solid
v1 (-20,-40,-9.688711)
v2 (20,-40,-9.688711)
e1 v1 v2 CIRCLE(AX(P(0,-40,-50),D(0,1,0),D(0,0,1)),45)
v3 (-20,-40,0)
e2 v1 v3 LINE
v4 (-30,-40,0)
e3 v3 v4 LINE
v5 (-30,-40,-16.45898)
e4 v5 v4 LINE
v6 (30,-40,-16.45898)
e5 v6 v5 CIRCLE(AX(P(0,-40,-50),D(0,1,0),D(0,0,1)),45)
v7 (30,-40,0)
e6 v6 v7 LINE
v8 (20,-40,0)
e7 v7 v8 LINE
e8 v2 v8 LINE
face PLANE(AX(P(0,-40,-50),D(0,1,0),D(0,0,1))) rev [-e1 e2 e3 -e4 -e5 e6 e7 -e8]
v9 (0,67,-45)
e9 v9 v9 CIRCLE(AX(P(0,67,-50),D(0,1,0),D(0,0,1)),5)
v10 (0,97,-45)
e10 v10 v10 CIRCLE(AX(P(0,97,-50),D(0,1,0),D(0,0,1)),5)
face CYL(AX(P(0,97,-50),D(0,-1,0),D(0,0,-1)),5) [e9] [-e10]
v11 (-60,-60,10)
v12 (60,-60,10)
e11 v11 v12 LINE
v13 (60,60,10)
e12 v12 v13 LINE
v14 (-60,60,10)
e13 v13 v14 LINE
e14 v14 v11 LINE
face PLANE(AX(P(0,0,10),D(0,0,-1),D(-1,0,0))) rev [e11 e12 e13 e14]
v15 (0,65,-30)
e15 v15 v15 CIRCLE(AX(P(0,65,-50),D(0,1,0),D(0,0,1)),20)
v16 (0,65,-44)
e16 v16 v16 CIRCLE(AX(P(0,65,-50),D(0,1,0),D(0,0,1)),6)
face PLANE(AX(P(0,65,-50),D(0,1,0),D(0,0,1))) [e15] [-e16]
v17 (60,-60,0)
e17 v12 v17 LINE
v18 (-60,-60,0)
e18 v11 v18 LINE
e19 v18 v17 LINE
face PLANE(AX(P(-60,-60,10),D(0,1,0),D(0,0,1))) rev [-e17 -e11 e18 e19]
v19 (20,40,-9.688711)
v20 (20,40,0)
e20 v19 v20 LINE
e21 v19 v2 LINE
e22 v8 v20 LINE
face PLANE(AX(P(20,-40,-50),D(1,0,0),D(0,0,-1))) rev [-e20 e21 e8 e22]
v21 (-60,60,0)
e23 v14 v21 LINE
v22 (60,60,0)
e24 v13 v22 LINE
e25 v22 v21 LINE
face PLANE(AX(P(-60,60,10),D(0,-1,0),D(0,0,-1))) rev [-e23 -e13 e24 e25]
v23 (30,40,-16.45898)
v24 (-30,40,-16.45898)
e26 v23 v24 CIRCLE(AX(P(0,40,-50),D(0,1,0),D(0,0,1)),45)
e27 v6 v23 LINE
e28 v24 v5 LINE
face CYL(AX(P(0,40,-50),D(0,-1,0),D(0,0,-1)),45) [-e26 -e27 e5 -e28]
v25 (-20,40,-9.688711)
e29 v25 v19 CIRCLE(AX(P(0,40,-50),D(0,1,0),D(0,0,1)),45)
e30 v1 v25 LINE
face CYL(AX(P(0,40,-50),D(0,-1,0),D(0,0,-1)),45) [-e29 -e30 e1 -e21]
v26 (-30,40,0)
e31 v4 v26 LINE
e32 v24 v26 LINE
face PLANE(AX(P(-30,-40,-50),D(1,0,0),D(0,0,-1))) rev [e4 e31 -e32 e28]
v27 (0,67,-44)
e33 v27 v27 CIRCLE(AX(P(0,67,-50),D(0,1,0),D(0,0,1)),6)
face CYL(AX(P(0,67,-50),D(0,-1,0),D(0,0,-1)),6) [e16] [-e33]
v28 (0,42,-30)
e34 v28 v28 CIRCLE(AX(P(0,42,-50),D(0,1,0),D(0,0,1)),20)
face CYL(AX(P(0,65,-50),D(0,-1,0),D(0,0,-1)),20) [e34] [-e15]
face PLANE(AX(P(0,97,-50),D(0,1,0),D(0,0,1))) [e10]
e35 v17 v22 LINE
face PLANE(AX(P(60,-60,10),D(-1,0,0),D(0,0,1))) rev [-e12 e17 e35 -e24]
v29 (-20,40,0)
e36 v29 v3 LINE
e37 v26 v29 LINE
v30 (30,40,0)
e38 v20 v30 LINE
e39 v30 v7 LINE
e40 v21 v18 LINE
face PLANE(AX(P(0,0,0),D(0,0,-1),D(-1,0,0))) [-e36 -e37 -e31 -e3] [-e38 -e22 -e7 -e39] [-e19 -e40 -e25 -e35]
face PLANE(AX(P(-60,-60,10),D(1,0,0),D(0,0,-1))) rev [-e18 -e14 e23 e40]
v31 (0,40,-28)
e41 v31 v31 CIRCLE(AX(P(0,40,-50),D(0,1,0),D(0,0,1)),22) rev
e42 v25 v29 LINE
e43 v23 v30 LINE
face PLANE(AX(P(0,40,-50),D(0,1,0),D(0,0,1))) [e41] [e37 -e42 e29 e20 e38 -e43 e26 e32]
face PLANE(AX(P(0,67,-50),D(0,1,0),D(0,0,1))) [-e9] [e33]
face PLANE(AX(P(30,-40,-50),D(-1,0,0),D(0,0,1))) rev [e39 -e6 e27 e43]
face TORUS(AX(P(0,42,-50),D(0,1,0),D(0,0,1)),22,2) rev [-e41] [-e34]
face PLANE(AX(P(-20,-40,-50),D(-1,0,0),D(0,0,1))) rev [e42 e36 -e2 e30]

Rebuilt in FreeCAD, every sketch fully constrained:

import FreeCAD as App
import Part
import Sketcher
from FreeCAD import Vector


def edges_at(feature, points):
    """Names of the edges that pass closest to the given points."""
    edges = feature.Shape.Edges
    near = lambda p: min(range(len(edges)), key=lambda i: edges[i].distToShape(Part.Vertex(*p))[0])
    return sorted({f"Edge{near(p) + 1}" for p in points})


def add_polygon(sketch, points):
    """Adds a closed chain of lines whose ends are joined by coincident constraints."""
    first, n = sketch.GeometryCount, len(points)
    for a, b in zip(points, points[1:] + points[:1]):
        sketch.addGeometry(Part.LineSegment(App.Vector(*a, 0), App.Vector(*b, 0)), False)
    for i in range(n):
        sketch.addConstraint(Sketcher.Constraint("Coincident", first + i, 2, first + (i + 1) % n, 1))

doc = App.newDocument("Part")
params = doc.addObject("Spreadsheet::Sheet", "Params")
for row, (alias, value) in enumerate([
    ("sketch1_width", "120 mm"),
    ("pad1_length", "10 mm"),
    ("sketch2_width", "10 mm"),
    ("sketch2_height", "80 mm"),
    ("pad2_length", "50 mm"),
    ("sketch3_diameter", "90 mm"),
    ("pad3_length", "80 mm"),
    ("sketch4_diameter", "40 mm"),
    ("pad4_length", "25 mm"),
    ("fillet_radius", "2 mm"),
    ("sketch5_diameter", "12 mm"),
    ("pad5_length", "2 mm"),
    ("sketch6_diameter", "10 mm"),
    ("pad6_length", "30 mm"),
], start=1):
    params.set(f"A{row}", alias)
    params.set(f"B{row}", "=" + value)
    params.setAlias(f"B{row}", alias)

body = doc.addObject("PartDesign::Body", "Body")

# Sketch on XY plane
sketch1 = body.newObject("Sketcher::SketchObject", "Sketch")
sketch1.AttachmentSupport = (doc.getObject("XY_Plane"), [""])
sketch1.MapMode = "FlatFace"
add_polygon(sketch1, [(-60, 60), (-60, -60), (60, -60), (60, 60)])  # lines 0-3
sketch1.addConstraint([
    Sketcher.Constraint("Vertical", 0),
    Sketcher.Constraint("Horizontal", 1),
    Sketcher.Constraint("Vertical", 2),
    Sketcher.Constraint("Horizontal", 3),
    Sketcher.Constraint("Symmetric", 0, 2, 2, 2, -1, 1),
    Sketcher.Constraint("Equal", 3, 0),
    Sketcher.Constraint("DistanceX", 1, 1, 1, 2, 120.0),
])
sketch1.setExpression("Constraints[10]", "Params.sketch1_width")
pad1 = body.newObject("PartDesign::Pad", "Pad")
pad1.Profile = sketch1
pad1.setExpression("Length", "Params.pad1_length")

# Sketch on XY plane
sketch2 = body.newObject("Sketcher::SketchObject", "Sketch001")
sketch2.AttachmentSupport = (doc.getObject("XY_Plane"), [""])
sketch2.MapMode = "FlatFace"
add_polygon(sketch2, [(30, 40), (30, -40), (20, -40), (20, 40)])  # lines 0-3
add_polygon(sketch2, [(-20, 40), (-20, -40), (-30, -40), (-30, 40)])  # lines 4-7
sketch2.addConstraint([
    Sketcher.Constraint("Vertical", 0),
    Sketcher.Constraint("Horizontal", 1),
    Sketcher.Constraint("Vertical", 2),
    Sketcher.Constraint("Horizontal", 3),
    Sketcher.Constraint("Vertical", 4),
    Sketcher.Constraint("Horizontal", 5),
    Sketcher.Constraint("Vertical", 6),
    Sketcher.Constraint("Horizontal", 7),
    Sketcher.Constraint("Symmetric", 2, 2, 4, 2, -1, 1),
    Sketcher.Constraint("Symmetric", 0, 2, 6, 2, -1, 1),
    Sketcher.Constraint("Horizontal", 1, 2, 4, 2),
    Sketcher.Constraint("DistanceX", 1, 2, 1, 1, 10.0),
    Sketcher.Constraint("DistanceY", 0, 2, 0, 1, 80.0),
    Sketcher.Constraint("DistanceX", -1, 1, 0, 2, 30.0),
])
sketch2.setExpression("Constraints[19]", "Params.sketch2_width")
sketch2.setExpression("Constraints[20]", "Params.sketch2_height")
pad2 = body.newObject("PartDesign::Pad", "Pad001")
pad2.Profile = sketch2
pad2.setExpression("Length", "Params.pad2_length")
pad2.Reversed = True
body2 = doc.addObject("PartDesign::Body", "Body001")

# Sketch on XZ plane
sketch3 = body2.newObject("Sketcher::SketchObject", "Sketch002")
sketch3.AttachmentSupport = (doc.getObject("XZ_Plane001"), [""])
sketch3.MapMode = "FlatFace"
sketch3.addGeometry(Part.Circle(Vector(0, -50, 0), Vector(0, 0, 1), 45), False)
sketch3.addConstraint([
    Sketcher.Constraint("PointOnObject", 0, 3, -2),
    Sketcher.Constraint("Diameter", 0, 90.0),
    Sketcher.Constraint("DistanceY", 0, 3, -1, 1, 50.0),
])
sketch3.setExpression("Constraints[1]", "Params.sketch3_diameter")
pad3 = body2.newObject("PartDesign::Pad", "Pad002")
pad3.Profile = sketch3
pad3.setExpression("Length", "Params.pad3_length")
pad3.Midplane = True
doc.recompute()

boolean = body.newObject("PartDesign::Boolean", "Boolean")
boolean.Type = "Fuse"
boolean.addObjects([body2])

# Sketch on XZ plane
sketch4 = body.newObject("Sketcher::SketchObject", "Sketch003")
sketch4.AttachmentSupport = (doc.getObject("XZ_Plane"), [""])
sketch4.MapMode = "FlatFace"
sketch4.AttachmentOffset = App.Placement(Vector(0, 0, -40), App.Rotation())
sketch4.addGeometry(Part.Circle(Vector(0, -50, 0), Vector(0, 0, 1), 20), False)
sketch4.addConstraint([
    Sketcher.Constraint("PointOnObject", 0, 3, -2),
    Sketcher.Constraint("Diameter", 0, 40.0),
    Sketcher.Constraint("DistanceY", 0, 3, -1, 1, 50.0),
])
sketch4.setExpression("Constraints[1]", "Params.sketch4_diameter")
pad4 = body.newObject("PartDesign::Pad", "Pad003")
pad4.Profile = sketch4
pad4.setExpression("Length", "Params.pad4_length")
pad4.Reversed = True
doc.recompute()

fillet = body.newObject("PartDesign::Fillet", "Fillet")
fillet.Base = (pad4, edges_at(pad4, [(-20, 40, -50)]))
fillet.setExpression("Radius", "Params.fillet_radius")

# Sketch on XZ plane
sketch5 = body.newObject("Sketcher::SketchObject", "Sketch004")
sketch5.AttachmentSupport = (doc.getObject("XZ_Plane"), [""])
sketch5.MapMode = "FlatFace"
sketch5.AttachmentOffset = App.Placement(Vector(0, 0, -65), App.Rotation())
sketch5.addGeometry(Part.Circle(Vector(0, -50, 0), Vector(0, 0, 1), 6), False)
sketch5.addConstraint([
    Sketcher.Constraint("PointOnObject", 0, 3, -2),
    Sketcher.Constraint("Diameter", 0, 12.0),
    Sketcher.Constraint("DistanceY", 0, 3, -1, 1, 50.0),
])
sketch5.setExpression("Constraints[1]", "Params.sketch5_diameter")
pad5 = body.newObject("PartDesign::Pad", "Pad004")
pad5.Profile = sketch5
pad5.setExpression("Length", "Params.pad5_length")
pad5.Reversed = True

# Sketch on XZ plane
sketch6 = body.newObject("Sketcher::SketchObject", "Sketch005")
sketch6.AttachmentSupport = (doc.getObject("XZ_Plane"), [""])
sketch6.MapMode = "FlatFace"
sketch6.AttachmentOffset = App.Placement(Vector(0, 0, -67), App.Rotation())
sketch6.addGeometry(Part.Circle(Vector(0, -50, 0), Vector(0, 0, 1), 5), False)
sketch6.addConstraint([
    Sketcher.Constraint("PointOnObject", 0, 3, -2),
    Sketcher.Constraint("Diameter", 0, 10.0),
    Sketcher.Constraint("DistanceY", 0, 3, -1, 1, 50.0),
])
sketch6.setExpression("Constraints[1]", "Params.sketch6_diameter")
pad6 = body.newObject("PartDesign::Pad", "Pad005")
pad6.Profile = sketch6
pad6.setExpression("Length", "Params.pad6_length")
pad6.Reversed = True

doc.recompute()
